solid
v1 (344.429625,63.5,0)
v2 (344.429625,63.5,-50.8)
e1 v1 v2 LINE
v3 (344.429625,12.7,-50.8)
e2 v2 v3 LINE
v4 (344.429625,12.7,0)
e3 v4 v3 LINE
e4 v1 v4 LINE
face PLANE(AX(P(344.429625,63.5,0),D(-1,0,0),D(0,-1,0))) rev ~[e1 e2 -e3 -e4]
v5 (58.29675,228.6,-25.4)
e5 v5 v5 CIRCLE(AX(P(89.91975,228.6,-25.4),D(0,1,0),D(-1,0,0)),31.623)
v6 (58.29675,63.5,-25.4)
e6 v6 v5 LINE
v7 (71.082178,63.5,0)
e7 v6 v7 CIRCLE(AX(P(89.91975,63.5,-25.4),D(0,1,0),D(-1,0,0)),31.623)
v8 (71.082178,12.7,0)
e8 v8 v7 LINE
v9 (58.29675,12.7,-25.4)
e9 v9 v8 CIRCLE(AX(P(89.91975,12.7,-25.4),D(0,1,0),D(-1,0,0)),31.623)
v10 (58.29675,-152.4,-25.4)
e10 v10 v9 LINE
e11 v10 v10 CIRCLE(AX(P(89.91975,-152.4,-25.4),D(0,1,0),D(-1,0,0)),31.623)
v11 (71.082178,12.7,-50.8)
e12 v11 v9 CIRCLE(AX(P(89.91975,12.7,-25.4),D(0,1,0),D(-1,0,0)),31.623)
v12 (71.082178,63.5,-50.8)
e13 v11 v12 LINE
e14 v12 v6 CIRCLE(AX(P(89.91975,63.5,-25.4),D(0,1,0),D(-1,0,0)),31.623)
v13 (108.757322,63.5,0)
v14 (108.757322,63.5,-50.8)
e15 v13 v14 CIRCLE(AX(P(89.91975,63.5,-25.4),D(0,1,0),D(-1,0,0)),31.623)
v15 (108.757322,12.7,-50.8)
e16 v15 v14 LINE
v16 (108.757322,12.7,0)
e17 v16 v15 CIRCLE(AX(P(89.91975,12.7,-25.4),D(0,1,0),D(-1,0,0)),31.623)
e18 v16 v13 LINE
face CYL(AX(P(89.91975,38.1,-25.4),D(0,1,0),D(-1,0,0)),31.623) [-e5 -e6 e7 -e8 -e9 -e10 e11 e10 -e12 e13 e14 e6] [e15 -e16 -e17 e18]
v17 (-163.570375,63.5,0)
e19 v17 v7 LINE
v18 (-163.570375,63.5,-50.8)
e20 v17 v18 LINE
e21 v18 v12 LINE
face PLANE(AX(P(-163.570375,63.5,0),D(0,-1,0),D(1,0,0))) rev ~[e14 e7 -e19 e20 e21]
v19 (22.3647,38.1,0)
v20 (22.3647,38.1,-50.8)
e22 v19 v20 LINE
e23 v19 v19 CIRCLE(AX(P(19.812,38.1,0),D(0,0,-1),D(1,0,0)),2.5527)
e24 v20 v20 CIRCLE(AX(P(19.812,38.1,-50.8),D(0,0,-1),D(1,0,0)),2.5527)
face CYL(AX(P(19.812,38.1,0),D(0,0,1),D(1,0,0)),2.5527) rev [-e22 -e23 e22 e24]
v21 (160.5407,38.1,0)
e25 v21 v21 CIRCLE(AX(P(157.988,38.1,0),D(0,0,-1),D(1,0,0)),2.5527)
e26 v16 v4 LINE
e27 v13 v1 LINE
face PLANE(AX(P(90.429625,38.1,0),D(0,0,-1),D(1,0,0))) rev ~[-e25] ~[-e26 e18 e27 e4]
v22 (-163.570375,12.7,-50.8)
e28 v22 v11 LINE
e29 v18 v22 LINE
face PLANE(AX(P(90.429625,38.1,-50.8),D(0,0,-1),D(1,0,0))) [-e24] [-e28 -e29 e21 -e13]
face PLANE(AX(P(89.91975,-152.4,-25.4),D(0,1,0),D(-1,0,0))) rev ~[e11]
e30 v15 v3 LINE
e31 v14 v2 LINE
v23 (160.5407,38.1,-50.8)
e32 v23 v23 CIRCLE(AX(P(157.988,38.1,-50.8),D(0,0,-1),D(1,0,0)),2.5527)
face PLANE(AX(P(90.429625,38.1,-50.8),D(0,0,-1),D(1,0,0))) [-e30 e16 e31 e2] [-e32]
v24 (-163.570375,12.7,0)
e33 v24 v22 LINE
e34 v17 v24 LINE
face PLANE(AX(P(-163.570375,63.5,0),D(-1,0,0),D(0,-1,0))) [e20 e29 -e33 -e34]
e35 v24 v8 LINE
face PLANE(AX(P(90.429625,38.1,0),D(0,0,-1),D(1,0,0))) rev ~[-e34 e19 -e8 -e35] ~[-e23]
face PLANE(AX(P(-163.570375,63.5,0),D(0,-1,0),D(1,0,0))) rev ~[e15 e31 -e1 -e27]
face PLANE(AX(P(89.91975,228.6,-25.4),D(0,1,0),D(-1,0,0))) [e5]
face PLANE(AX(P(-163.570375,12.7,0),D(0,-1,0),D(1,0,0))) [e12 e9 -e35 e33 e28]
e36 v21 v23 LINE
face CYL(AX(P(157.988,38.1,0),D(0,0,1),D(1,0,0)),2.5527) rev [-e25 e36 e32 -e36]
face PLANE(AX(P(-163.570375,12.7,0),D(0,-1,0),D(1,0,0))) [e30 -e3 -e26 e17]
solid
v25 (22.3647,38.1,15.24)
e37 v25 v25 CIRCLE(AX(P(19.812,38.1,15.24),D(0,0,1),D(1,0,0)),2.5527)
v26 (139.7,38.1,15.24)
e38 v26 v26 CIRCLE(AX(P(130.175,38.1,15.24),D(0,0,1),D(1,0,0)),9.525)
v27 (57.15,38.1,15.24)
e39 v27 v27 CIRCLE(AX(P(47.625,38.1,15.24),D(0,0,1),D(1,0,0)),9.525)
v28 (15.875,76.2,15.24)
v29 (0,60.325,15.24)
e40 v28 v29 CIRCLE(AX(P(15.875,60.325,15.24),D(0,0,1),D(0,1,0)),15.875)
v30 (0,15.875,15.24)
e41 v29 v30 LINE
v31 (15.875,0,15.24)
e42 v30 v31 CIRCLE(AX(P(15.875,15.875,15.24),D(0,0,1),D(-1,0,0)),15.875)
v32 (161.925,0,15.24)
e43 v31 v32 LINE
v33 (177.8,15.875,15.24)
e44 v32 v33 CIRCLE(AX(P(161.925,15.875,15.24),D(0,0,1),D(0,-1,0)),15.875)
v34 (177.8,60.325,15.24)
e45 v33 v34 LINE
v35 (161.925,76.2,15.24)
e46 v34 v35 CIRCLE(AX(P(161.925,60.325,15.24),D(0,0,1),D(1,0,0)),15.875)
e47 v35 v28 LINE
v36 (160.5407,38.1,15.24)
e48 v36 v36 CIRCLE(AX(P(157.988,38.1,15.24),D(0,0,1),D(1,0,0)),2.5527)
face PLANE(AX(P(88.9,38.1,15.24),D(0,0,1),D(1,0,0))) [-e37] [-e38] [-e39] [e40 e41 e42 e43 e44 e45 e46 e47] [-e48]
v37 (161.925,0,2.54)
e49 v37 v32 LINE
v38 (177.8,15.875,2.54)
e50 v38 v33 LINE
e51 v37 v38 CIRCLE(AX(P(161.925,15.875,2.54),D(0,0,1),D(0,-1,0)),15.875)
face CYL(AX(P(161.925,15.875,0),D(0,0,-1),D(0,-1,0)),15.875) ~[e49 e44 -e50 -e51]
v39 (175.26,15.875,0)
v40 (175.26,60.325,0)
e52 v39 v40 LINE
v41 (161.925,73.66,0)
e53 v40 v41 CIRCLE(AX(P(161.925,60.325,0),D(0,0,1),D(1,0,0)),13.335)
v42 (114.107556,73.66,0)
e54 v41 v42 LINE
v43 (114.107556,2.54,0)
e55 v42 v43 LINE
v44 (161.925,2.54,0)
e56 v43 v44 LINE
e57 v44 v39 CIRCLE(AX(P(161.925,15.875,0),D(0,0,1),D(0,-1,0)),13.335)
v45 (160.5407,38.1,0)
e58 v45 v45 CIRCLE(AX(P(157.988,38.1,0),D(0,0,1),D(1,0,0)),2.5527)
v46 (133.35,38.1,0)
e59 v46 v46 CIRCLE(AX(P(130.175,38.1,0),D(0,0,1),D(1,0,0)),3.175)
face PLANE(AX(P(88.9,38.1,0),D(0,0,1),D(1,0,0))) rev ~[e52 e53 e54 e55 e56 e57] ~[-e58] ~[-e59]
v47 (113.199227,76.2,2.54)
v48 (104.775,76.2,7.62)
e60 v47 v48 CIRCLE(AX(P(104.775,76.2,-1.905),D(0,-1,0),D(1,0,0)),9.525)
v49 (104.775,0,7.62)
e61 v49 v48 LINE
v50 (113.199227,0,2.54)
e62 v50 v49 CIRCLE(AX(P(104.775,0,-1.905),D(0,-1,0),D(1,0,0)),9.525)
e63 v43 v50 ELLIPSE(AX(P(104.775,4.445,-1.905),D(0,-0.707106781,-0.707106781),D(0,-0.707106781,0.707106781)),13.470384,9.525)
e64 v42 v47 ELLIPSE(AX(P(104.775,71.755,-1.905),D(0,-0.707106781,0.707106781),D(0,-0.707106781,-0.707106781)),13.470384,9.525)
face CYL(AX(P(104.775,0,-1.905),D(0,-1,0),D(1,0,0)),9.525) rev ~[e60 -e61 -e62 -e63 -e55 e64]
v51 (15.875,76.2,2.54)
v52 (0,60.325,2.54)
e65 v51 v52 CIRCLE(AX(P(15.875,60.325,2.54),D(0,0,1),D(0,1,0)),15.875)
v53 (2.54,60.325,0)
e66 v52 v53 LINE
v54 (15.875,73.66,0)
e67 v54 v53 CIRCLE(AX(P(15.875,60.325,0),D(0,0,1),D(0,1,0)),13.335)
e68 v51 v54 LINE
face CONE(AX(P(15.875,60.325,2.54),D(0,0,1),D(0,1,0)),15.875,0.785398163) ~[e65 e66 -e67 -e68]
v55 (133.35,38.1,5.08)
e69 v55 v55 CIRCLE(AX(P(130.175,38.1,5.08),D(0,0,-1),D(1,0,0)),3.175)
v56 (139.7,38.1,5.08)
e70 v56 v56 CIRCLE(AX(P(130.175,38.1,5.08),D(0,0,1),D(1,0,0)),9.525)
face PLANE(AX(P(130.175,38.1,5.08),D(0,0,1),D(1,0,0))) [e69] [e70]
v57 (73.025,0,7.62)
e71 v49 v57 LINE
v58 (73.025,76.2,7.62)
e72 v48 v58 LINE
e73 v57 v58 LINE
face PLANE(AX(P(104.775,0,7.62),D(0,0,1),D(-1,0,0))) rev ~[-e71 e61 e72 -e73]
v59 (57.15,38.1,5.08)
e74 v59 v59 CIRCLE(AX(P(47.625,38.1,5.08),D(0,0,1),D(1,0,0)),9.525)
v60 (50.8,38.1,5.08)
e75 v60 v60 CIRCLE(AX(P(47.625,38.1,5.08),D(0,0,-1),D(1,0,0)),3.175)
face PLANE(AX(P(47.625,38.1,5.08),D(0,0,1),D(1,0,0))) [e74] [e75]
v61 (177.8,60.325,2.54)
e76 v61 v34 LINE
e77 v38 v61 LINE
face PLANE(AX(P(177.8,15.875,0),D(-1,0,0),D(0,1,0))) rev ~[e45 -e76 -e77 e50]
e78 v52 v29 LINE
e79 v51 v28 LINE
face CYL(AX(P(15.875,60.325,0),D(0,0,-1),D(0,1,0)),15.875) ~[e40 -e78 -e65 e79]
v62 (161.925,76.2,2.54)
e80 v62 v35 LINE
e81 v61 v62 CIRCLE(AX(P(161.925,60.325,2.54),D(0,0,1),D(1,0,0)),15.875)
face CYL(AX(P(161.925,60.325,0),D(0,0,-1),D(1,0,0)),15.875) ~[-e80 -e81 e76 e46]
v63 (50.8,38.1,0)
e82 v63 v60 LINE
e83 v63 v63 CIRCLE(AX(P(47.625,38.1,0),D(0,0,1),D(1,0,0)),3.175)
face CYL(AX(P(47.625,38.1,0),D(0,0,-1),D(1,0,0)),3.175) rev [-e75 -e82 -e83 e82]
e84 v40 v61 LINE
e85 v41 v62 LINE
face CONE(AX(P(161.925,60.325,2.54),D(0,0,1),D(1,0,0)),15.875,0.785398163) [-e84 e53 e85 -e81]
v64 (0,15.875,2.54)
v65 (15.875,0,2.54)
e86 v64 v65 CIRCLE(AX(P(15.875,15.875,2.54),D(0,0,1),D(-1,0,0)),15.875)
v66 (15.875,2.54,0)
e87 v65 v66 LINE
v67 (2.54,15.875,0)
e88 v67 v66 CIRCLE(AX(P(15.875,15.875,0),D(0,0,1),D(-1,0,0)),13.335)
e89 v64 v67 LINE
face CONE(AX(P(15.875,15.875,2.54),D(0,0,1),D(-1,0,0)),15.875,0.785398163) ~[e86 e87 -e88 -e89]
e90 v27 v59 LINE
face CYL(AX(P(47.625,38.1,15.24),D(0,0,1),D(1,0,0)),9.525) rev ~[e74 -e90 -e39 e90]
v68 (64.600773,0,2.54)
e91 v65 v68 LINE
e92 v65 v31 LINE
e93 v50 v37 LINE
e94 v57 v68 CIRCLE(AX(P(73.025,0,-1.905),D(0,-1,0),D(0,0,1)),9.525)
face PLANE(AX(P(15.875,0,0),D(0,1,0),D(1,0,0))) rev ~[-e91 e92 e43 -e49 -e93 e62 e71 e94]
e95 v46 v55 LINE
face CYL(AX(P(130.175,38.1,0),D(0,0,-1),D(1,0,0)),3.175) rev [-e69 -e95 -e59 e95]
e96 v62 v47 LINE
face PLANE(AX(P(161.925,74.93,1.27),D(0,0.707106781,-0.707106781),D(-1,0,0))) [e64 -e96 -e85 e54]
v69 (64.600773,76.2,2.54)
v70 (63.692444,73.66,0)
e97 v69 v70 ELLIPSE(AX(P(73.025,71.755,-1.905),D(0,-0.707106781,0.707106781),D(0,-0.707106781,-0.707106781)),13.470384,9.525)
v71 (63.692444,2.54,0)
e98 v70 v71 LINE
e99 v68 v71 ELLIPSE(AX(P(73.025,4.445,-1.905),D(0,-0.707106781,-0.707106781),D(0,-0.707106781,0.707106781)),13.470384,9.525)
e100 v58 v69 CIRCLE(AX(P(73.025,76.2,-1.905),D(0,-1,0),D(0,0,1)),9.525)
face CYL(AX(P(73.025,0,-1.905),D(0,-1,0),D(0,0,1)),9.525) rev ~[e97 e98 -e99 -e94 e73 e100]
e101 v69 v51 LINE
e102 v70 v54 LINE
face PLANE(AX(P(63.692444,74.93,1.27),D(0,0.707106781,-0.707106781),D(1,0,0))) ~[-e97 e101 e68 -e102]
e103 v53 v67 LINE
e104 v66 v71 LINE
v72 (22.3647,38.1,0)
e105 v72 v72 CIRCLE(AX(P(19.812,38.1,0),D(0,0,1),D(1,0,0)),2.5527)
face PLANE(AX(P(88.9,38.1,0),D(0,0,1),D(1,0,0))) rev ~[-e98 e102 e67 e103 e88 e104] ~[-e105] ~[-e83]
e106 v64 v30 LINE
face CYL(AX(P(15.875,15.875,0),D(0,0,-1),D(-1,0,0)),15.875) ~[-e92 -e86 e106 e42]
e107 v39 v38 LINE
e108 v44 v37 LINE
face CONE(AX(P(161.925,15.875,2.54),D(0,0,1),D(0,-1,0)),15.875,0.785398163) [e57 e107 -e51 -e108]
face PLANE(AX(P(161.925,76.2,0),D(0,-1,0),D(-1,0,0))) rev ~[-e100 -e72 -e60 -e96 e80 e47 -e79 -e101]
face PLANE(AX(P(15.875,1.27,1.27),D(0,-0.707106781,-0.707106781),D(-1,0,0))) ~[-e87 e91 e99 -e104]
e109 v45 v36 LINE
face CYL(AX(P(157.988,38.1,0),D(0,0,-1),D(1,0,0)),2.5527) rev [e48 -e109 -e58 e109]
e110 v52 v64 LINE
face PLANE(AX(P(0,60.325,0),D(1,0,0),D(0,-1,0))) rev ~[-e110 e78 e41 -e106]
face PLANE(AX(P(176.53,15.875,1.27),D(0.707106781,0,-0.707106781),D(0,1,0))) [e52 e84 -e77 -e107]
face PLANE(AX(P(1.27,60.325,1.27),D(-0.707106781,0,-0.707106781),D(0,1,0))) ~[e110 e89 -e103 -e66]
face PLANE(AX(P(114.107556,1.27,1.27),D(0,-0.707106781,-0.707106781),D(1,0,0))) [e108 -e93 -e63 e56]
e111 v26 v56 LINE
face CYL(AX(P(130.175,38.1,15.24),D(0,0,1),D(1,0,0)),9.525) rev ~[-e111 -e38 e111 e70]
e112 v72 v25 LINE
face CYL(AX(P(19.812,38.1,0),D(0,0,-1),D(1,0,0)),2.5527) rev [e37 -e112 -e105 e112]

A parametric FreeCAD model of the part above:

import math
import FreeCAD as App
import Part
import Sketcher
from FreeCAD import Vector
Q = App.Units.Quantity


def edges_at(feature, points):
    """Names of the edges that pass closest to the given points."""
    edges = feature.Shape.Edges
    near = lambda p: min(range(len(edges)), key=lambda i: edges[i].distToShape(Part.Vertex(*p))[0])
    return sorted({f"Edge{near(p) + 1}" for p in points})


def add_polygon(sketch, points):
    """Adds a closed chain of lines whose ends are joined by coincident constraints."""
    first, n = sketch.GeometryCount, len(points)
    for a, b in zip(points, points[1:] + points[:1]):
        sketch.addGeometry(Part.LineSegment(App.Vector(*a, 0), App.Vector(*b, 0)), False)
    for i in range(n):
        sketch.addConstraint(Sketcher.Constraint("Coincident", first + i, 2, first + (i + 1) % n, 1))

doc = App.newDocument("Part")
body = doc.addObject("PartDesign::Body", "Body")

# Sketch on XY plane
sketch1 = body.newObject("Sketcher::SketchObject", "Sketch")
sketch1.AttachmentSupport = (doc.getObject("XY_Plane"), [""])
sketch1.MapMode = "FlatFace"
sketch1.addGeometry([
    Part.ArcOfCircle(Part.Circle(Vector(15.9, 15.9, 0), Vector(0, 0, 1), 15.9), math.radians(180), math.radians(270)),  # 0
    Part.LineSegment(Vector(15.9, 0, 0), Vector(161.9, 0, 0)),  # 1
    Part.ArcOfCircle(Part.Circle(Vector(161.9, 15.9, 0), Vector(0, 0, 1), 15.9), math.radians(-90), math.radians(0)),  # 2
    Part.LineSegment(Vector(177.8, 15.9, 0), Vector(177.8, 60.3, 0)),  # 3
    Part.ArcOfCircle(Part.Circle(Vector(161.9, 60.3, 0), Vector(0, 0, 1), 15.9), math.radians(0), math.radians(90)),  # 4
    Part.LineSegment(Vector(161.9, 76.2, 0), Vector(15.9, 76.2, 0)),  # 5
    Part.ArcOfCircle(Part.Circle(Vector(15.9, 60.3, 0), Vector(0, 0, 1), 15.9), math.radians(90), math.radians(180)),  # 6
    Part.LineSegment(Vector(0, 60.3, 0), Vector(0, 15.9, 0)),  # 7
    Part.Circle(Vector(19.8, 38.1, 0), Vector(0, 0, 1), 2.6),  # 8
    Part.Circle(Vector(47.6, 38.1, 0), Vector(0, 0, 1), 3.2),  # 9
    Part.Circle(Vector(130.2, 38.1, 0), Vector(0, 0, 1), 3.2),  # 10
    Part.Circle(Vector(158, 38.1, 0), Vector(0, 0, 1), 2.6),  # 11
], False)
sketch1.addConstraint([
    Sketcher.Constraint("Tangent", 0, 2, 1, 1),
    Sketcher.Constraint("Tangent", 1, 2, 2, 1),
    Sketcher.Constraint("Tangent", 2, 2, 3, 1),
    Sketcher.Constraint("Tangent", 3, 2, 4, 1),
    Sketcher.Constraint("Tangent", 4, 2, 5, 1),
    Sketcher.Constraint("Tangent", 5, 2, 6, 1),
    Sketcher.Constraint("Tangent", 6, 2, 7, 1),
    Sketcher.Constraint("Tangent", 7, 2, 0, 1),
    Sketcher.Constraint("Horizontal", 1),
    Sketcher.Constraint("Vertical", 3),
    Sketcher.Constraint("Horizontal", 5),
    Sketcher.Constraint("Vertical", 7),
    Sketcher.Constraint("Equal", 0, 2),
    Sketcher.Constraint("Equal", 2, 4),
    Sketcher.Constraint("Equal", 4, 6),
    Sketcher.Constraint("Equal", 9, 10),
    Sketcher.Constraint("Equal", 8, 11),
    Sketcher.Constraint("PointOnObject", 0, 2, -1),
    Sketcher.Constraint("PointOnObject", 6, 2, -2),
    Sketcher.Constraint("Horizontal", 8, 3, 9, 3),
    Sketcher.Constraint("Horizontal", 9, 3, 10, 3),
    Sketcher.Constraint("Horizontal", 10, 3, 11, 3),
    Sketcher.Constraint("Diameter", 9, Q("0.25 in")),
    Sketcher.Constraint("Diameter", 8, Q("0.201 in")),
    Sketcher.Constraint("DistanceX", -1, 1, 2, 2, Q("7 in")),
    Sketcher.Constraint("DistanceY", -1, 1, 4, 2, Q("3 in")),
    Sketcher.Constraint("Radius", 0, Q("0.625 in")),
    Sketcher.Constraint("DistanceY", -1, 1, 8, 3, Q("1.5 in")),
    Sketcher.Constraint("DistanceX", 9, 3, 2, 3, Q("4.5 in")),
    Sketcher.Constraint("DistanceX", 0, 3, 10, 3, Q("4.5 in")),
    Sketcher.Constraint("DistanceX", -1, 1, 8, 3, Q("0.78 in")),
    Sketcher.Constraint("DistanceX", -1, 1, 11, 3, Q("6.22 in")),
])
pad1 = body.newObject("PartDesign::Pad", "Pad")
pad1.Profile = sketch1
pad1.Length = Q("0.6 in")

# Sketch on XZ plane
sketch2 = body.newObject("Sketcher::SketchObject", "Sketch001")
sketch2.AttachmentSupport = (doc.getObject("XZ_Plane"), [""])
sketch2.MapMode = "FlatFace"
sketch2.addGeometry([
    Part.LineSegment(Vector(105, 8, 0), Vector(73, 8, 0)),  # 0
    Part.ArcOfCircle(Part.Circle(Vector(73, -2, 0), Vector(0, 0, 1), 10), math.radians(90), math.radians(180)),  # 1
    Part.LineSegment(Vector(64, -2, 0), Vector(64, -16, 0)),  # 2
    Part.LineSegment(Vector(64, -16, 0), Vector(114, -16, 0)),  # 3
    Part.LineSegment(Vector(114, -16, 0), Vector(114, -2, 0)),  # 4
    Part.ArcOfCircle(Part.Circle(Vector(105, -2, 0), Vector(0, 0, 1), 10), math.radians(0), math.radians(90)),  # 5
], False)
sketch2.addConstraint([
    Sketcher.Constraint("Tangent", 0, 2, 1, 1),
    Sketcher.Constraint("Tangent", 1, 2, 2, 1),
    Sketcher.Constraint("Coincident", 2, 2, 3, 1),
    Sketcher.Constraint("Coincident", 3, 2, 4, 1),
    Sketcher.Constraint("Tangent", 4, 2, 5, 1),
    Sketcher.Constraint("Tangent", 5, 2, 0, 1),
    Sketcher.Constraint("Horizontal", 0),
    Sketcher.Constraint("Vertical", 2),
    Sketcher.Constraint("Horizontal", 3),
    Sketcher.Constraint("Vertical", 4),
    Sketcher.Constraint("Equal", 1, 5),
    Sketcher.Constraint("DistanceX", 3, 1, 3, 2, Q("2 in")),
    Sketcher.Constraint("Radius", 1, Q("0.375 in")),
    Sketcher.Constraint("DistanceY", -1, 1, 0, 2, Q("0.3 in")),
    Sketcher.Constraint("DistanceX", -1, 1, 1, 2, Q("2.5 in")),
    Sketcher.Constraint("DistanceY", 2, 2, 2, 1, Q("14.103839 mm")),
])
pocket1 = body.newObject("PartDesign::Pocket", "Pocket")
pocket1.Profile = sketch2
pocket1.Type = "ThroughAll"
doc.recompute()

chamfer = body.newObject("PartDesign::Chamfer", "Chamfer")
chamfer.Base = (pocket1, edges_at(pocket1, [
    (39.784, 0, 0),
    (4.65, 4.65, 0),
    (0, 38.1, 0),
    (4.65, 71.55, 0),
    (39.784, 76.2, 0),
    (138.016, 76.2, 0),
    (173.15, 71.55, 0),
    (177.8, 38.1, 0),
    (173.15, 4.65, 0),
    (138.016, 0, 0),
]))
chamfer.Size = Q("0.1 in")

# Sketch on XY plane
sketch3 = body.newObject("Sketcher::SketchObject", "Sketch002")
sketch3.AttachmentSupport = (doc.getObject("XY_Plane"), [""])
sketch3.MapMode = "FlatFace"
sketch3.AttachmentOffset = App.Placement(Vector(0, 0, 0.6 * 25.4), App.Rotation())
sketch3.addGeometry([
    Part.Circle(Vector(130, 38, 0), Vector(0, 0, 1), 10),
    Part.Circle(Vector(48, 38, 0), Vector(0, 0, 1), 10),
], False)
sketch3.addConstraint([
    Sketcher.Constraint("Equal", 0, 1),
    Sketcher.Constraint("Horizontal", 0, 3, 1, 3),
    Sketcher.Constraint("Diameter", 0, Q("0.75 in")),
    Sketcher.Constraint("DistanceY", -1, 1, 0, 3, Q("1.5 in")),
    Sketcher.Constraint("DistanceX", 1, 3, 0, 3, Q("3.25 in")),
    Sketcher.Constraint("DistanceX", -1, 1, 0, 3, Q("5.125 in")),
])
pocket2 = body.newObject("PartDesign::Pocket", "Pocket001")
pocket2.Profile = sketch3
pocket2.Length = Q("0.4 in")
body2 = doc.addObject("PartDesign::Body", "Body001")

# Sketch on XY plane
sketch4 = body2.newObject("Sketcher::SketchObject", "Sketch003")
sketch4.AttachmentSupport = (doc.getObject("XY_Plane001"), [""])
sketch4.MapMode = "FlatFace"
add_polygon(sketch4, [(-163.6, 12.7), (-163.6, 63.5), (344.4, 63.5), (344.4, 12.7)])  # lines 0-3
sketch4.addGeometry(Part.Circle(Vector(19.8, 38.1, 0), Vector(0, 0, 1), 2.6), False)  # 4
sketch4.addGeometry(Part.Circle(Vector(158, 38.1, 0), Vector(0, 0, 1), 2.6), False)  # 5
sketch4.addConstraint([
    Sketcher.Constraint("Vertical", 0),
    Sketcher.Constraint("Horizontal", 1),
    Sketcher.Constraint("Vertical", 2),
    Sketcher.Constraint("Horizontal", 3),
    Sketcher.Constraint("Equal", 4, 5),
    Sketcher.Constraint("Horizontal", 4, 3, 5, 3),
    Sketcher.Constraint("DistanceX", 1, 1, 1, 2, Q("20 in")),
    Sketcher.Constraint("DistanceY", 0, 1, 0, 2, Q("2 in")),
    Sketcher.Constraint("Diameter", 4, Q("0.201 in")),
    Sketcher.Constraint("DistanceY", 4, 3, 0, 2, Q("1 in")),
    Sketcher.Constraint("DistanceY", -1, 1, 4, 3, Q("1.5 in")),
    Sketcher.Constraint("DistanceX", -1, 1, 4, 3, Q("0.78 in")),
    Sketcher.Constraint("DistanceX", -1, 1, 5, 3, Q("6.22 in")),
    Sketcher.Constraint("DistanceX", 0, 2, -1, 1, Q("163.570375 mm")),
])
pad2 = body2.newObject("PartDesign::Pad", "Pad001")
pad2.Profile = sketch4
pad2.Length = Q("2 in")
pad2.Reversed = True

# Sketch on XZ plane
sketch5 = body2.newObject("Sketcher::SketchObject", "Sketch004")
sketch5.AttachmentSupport = (doc.getObject("XZ_Plane001"), [""])
sketch5.MapMode = "FlatFace"
sketch5.AttachmentOffset = App.Placement(Vector(0, 0, -1.5 * 25.4), App.Rotation())
sketch5.addGeometry(Part.Circle(Vector(90, -25, 0), Vector(0, 0, 1), 32), False)
sketch5.addConstraint([
    Sketcher.Constraint("Diameter", 0, Q("2.49 in")),
    Sketcher.Constraint("DistanceY", 0, 3, -1, 1, Q("1 in")),
    Sketcher.Constraint("DistanceX", -1, 1, 0, 3, Q("89.91975 mm")),
])
pad3 = body2.newObject("PartDesign::Pad", "Pad002")
pad3.Profile = sketch5
pad3.Length = Q("15 in")
pad3.Midplane = True

doc.recompute()
